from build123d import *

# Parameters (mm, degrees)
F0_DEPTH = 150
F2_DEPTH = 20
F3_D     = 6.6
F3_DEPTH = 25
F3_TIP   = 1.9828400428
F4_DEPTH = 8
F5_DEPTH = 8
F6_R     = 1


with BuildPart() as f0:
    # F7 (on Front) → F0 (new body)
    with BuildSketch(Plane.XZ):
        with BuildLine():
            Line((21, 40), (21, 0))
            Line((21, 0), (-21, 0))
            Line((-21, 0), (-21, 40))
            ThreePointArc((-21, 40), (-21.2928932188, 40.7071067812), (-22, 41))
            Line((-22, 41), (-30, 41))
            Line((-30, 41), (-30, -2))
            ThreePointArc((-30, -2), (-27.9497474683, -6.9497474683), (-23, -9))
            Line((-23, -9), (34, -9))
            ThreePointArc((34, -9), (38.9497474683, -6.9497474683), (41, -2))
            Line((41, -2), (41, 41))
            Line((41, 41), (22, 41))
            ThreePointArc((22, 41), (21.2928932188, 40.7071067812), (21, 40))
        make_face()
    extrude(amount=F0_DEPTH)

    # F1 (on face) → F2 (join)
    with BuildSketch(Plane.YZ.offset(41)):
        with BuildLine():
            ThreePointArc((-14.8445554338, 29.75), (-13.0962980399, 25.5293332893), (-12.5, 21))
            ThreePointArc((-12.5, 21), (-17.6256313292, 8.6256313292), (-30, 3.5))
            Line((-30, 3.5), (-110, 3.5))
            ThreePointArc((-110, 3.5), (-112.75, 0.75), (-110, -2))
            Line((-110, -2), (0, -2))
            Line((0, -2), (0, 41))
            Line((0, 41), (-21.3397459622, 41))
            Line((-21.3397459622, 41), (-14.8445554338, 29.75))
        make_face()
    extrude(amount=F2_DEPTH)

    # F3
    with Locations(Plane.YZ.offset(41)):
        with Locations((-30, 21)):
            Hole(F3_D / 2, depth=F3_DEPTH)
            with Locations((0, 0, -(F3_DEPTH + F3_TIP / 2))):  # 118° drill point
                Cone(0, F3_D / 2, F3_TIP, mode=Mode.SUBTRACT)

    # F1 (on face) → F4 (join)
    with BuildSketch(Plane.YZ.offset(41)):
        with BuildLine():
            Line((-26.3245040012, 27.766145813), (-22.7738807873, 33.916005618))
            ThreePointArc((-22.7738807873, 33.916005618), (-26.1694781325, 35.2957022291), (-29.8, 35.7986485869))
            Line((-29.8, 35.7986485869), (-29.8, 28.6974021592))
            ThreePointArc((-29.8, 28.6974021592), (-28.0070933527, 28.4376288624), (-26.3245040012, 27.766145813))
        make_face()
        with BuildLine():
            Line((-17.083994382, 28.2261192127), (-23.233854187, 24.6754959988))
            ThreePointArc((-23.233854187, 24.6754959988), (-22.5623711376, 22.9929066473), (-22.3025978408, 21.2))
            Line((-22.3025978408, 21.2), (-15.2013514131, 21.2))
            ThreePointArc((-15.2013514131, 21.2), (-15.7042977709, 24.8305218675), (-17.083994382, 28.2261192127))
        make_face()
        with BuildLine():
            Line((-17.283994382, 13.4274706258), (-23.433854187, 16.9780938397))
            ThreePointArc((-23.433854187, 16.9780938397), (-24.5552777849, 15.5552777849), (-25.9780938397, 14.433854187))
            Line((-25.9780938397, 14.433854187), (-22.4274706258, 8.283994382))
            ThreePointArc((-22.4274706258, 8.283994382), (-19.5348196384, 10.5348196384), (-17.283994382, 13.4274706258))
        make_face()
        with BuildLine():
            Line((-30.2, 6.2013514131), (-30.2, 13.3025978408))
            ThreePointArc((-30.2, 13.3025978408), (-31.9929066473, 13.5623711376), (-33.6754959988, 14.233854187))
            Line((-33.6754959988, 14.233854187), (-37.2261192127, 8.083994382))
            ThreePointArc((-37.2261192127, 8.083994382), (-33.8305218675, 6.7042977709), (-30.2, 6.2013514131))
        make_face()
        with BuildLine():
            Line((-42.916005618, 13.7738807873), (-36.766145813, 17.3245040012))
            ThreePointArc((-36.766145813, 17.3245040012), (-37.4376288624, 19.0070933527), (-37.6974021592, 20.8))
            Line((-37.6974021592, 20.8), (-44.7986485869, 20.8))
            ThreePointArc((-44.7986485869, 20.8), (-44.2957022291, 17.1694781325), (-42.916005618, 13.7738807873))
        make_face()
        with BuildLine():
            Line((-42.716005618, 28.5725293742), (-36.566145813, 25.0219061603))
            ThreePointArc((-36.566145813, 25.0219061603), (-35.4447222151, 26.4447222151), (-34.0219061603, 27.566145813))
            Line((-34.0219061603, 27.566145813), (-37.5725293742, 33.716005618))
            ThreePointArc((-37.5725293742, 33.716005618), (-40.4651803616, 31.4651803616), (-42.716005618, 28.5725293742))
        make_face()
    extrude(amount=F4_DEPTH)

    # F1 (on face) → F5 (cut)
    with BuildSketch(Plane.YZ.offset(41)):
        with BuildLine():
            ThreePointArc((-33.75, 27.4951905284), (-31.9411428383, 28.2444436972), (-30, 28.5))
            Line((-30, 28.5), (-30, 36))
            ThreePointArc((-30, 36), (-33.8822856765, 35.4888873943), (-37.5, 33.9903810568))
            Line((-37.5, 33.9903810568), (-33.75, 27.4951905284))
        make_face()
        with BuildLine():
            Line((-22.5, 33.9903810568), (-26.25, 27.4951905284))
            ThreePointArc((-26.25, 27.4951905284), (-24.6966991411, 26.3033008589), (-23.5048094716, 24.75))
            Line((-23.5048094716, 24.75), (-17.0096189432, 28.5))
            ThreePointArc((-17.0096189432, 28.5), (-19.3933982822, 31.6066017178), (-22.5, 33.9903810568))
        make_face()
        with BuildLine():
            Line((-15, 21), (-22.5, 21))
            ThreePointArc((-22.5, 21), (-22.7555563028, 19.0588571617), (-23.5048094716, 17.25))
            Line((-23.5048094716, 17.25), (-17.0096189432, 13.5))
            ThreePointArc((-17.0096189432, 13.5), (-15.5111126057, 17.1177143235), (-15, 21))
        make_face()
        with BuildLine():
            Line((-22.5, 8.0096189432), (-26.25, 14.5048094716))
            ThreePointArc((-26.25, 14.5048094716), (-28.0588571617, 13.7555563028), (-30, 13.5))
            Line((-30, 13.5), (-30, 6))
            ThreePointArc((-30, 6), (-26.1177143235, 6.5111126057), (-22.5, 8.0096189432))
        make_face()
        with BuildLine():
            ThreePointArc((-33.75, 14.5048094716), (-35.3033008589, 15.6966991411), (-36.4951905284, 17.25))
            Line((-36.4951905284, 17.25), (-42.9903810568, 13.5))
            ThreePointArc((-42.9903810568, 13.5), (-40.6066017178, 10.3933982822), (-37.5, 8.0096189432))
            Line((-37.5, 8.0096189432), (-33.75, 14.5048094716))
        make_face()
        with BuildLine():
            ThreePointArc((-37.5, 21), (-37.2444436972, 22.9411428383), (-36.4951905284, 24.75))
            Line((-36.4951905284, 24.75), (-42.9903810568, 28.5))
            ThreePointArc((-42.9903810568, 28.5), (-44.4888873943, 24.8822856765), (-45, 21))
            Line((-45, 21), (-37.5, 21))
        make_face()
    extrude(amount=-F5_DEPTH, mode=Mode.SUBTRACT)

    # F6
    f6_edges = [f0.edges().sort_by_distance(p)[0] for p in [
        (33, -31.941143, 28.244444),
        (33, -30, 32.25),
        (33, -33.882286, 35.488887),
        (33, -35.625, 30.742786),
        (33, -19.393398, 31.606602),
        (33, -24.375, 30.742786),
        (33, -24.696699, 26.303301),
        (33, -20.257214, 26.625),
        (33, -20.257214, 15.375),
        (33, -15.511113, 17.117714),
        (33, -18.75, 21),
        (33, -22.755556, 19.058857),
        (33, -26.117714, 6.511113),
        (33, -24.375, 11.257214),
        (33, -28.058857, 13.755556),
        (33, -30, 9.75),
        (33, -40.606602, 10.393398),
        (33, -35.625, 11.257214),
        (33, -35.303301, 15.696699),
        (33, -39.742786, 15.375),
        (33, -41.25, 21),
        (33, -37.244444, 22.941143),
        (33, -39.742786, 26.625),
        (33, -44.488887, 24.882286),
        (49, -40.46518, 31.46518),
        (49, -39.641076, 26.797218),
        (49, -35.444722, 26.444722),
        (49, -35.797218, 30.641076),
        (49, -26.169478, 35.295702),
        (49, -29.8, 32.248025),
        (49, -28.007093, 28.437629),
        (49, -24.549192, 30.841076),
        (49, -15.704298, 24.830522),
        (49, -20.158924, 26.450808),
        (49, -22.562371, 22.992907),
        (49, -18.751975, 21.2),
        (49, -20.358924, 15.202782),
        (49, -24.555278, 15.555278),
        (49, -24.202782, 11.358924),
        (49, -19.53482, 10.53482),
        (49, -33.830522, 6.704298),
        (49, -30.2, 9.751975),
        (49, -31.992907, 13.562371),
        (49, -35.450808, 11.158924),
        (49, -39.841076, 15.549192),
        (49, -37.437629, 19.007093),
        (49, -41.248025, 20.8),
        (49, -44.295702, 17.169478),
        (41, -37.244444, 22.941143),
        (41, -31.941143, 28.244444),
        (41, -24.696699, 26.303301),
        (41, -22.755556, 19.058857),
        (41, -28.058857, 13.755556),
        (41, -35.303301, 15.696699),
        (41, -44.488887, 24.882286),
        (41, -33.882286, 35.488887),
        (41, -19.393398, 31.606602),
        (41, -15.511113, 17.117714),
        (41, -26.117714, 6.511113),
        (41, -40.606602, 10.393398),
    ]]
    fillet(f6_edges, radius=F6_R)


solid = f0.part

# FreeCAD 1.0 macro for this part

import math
import FreeCAD as App
import Part
import Sketcher
Q = App.Units.Quantity


def edges_at(feature, points):
    """Names of the edges that pass closest to the given points."""
    edges = feature.Shape.Edges
    near = lambda p: min(range(len(edges)), key=lambda i: edges[i].distToShape(Part.Vertex(*p))[0])
    return sorted({f"Edge{near(p) + 1}" for p in points})

doc = App.newDocument("Part")
body = doc.addObject("PartDesign::Body", "Body")

# Sketch on XZ plane
sketch1 = body.newObject("Sketcher::SketchObject", "Sketch")
sketch1.AttachmentSupport = (doc.getObject("XZ_Plane"), [""])
sketch1.MapMode = "FlatFace"
sketch1.addGeometry([
    Part.LineSegment(App.Vector(21, 40, 0), App.Vector(21, 0, 0)),  # 0
    Part.LineSegment(App.Vector(21, 0, 0), App.Vector(-21, 0, 0)),  # 1
    Part.LineSegment(App.Vector(-21, 0, 0), App.Vector(-21, 40, 0)),  # 2
    Part.ArcOfCircle(Part.Circle(App.Vector(-22, 40, 0), App.Vector(0, 0, 1), 1), math.radians(0), math.radians(90)),  # 3
    Part.LineSegment(App.Vector(-22, 41, 0), App.Vector(-30, 41, 0)),  # 4
    Part.LineSegment(App.Vector(-30, 41, 0), App.Vector(-30, -2, 0)),  # 5
    Part.ArcOfCircle(Part.Circle(App.Vector(-23, -2, 0), App.Vector(0, 0, 1), 7), math.radians(180), math.radians(270)),  # 6
    Part.LineSegment(App.Vector(-23, -9, 0), App.Vector(34, -9, 0)),  # 7
    Part.ArcOfCircle(Part.Circle(App.Vector(34, -2, 0), App.Vector(0, 0, 1), 7), math.radians(-90), math.radians(0)),  # 8
    Part.LineSegment(App.Vector(41, -2, 0), App.Vector(41, 41, 0)),  # 9
    Part.LineSegment(App.Vector(41, 41, 0), App.Vector(22, 41, 0)),  # 10
    Part.ArcOfCircle(Part.Circle(App.Vector(22, 40, 0), App.Vector(0, 0, 1), 1), math.radians(90), math.radians(180)),  # 11
], False)
sketch1.addConstraint([
    Sketcher.Constraint("Coincident", 0, 2, 1, 1),
    Sketcher.Constraint("Coincident", 1, 2, 2, 1),
    Sketcher.Constraint("Tangent", 2, 2, 3, 1),
    Sketcher.Constraint("Tangent", 3, 2, 4, 1),
    Sketcher.Constraint("Coincident", 4, 2, 5, 1),
    Sketcher.Constraint("Tangent", 5, 2, 6, 1),
    Sketcher.Constraint("Tangent", 6, 2, 7, 1),
    Sketcher.Constraint("Tangent", 7, 2, 8, 1),
    Sketcher.Constraint("Tangent", 8, 2, 9, 1),
    Sketcher.Constraint("Coincident", 9, 2, 10, 1),
    Sketcher.Constraint("Tangent", 10, 2, 11, 1),
    Sketcher.Constraint("Tangent", 11, 2, 0, 1),
    Sketcher.Constraint("Vertical", 0),
    Sketcher.Constraint("Horizontal", 1),
    Sketcher.Constraint("Vertical", 2),
    Sketcher.Constraint("Horizontal", 4),
    Sketcher.Constraint("Vertical", 5),
    Sketcher.Constraint("Horizontal", 7),
    Sketcher.Constraint("Vertical", 9),
    Sketcher.Constraint("Horizontal", 10),
    Sketcher.Constraint("Equal", 6, 8),
    Sketcher.Constraint("Equal", 3, 11),
    Sketcher.Constraint("Symmetric", 0, 2, 1, 2, -1, 1),
    Sketcher.Constraint("Horizontal", 3, 3, 11, 3),
    Sketcher.Constraint("Radius", 3, Q("1 mm")),
    Sketcher.Constraint("Radius", 6, Q("7 mm")),
    Sketcher.Constraint("DistanceX", 1, 2, 1, 1, Q("42 mm")),
    Sketcher.Constraint("DistanceX", 4, 2, 4, 1, Q("8 mm")),
    Sketcher.Constraint("DistanceX", 7, 1, 7, 2, Q("57 mm")),
    Sketcher.Constraint("DistanceY", 0, 2, 0, 1, Q("40 mm")),
    Sketcher.Constraint("DistanceY", 5, 2, 5, 1, Q("43 mm")),
])
pad1 = body.newObject("PartDesign::Pad", "Pad")
pad1.Profile = sketch1
pad1.Length = 150

# Sketch on YZ plane
sketch2 = body.newObject("Sketcher::SketchObject", "Sketch001")
sketch2.AttachmentSupport = (doc.getObject("YZ_Plane"), [""])
sketch2.MapMode = "FlatFace"
sketch2.AttachmentOffset = App.Placement(App.Vector(0, 0, 41), App.Rotation())
sketch2.addGeometry([
    Part.ArcOfCircle(Part.Circle(App.Vector(-30, 21, 0), App.Vector(0, 0, 1), 17.5), math.radians(0), math.radians(30)),  # 0
    Part.ArcOfCircle(Part.Circle(App.Vector(-30, 21, 0), App.Vector(0, 0, 1), 17.5), math.radians(-90), math.radians(0)),  # 1
    Part.LineSegment(App.Vector(-30, 3.5, 0), App.Vector(-110, 3.5, 0)),  # 2
    Part.ArcOfCircle(Part.Circle(App.Vector(-110, 0.8, 0), App.Vector(0, 0, 1), 2.8), math.radians(90), math.radians(270)),  # 3
    Part.LineSegment(App.Vector(-110, -2, 0), App.Vector(0, -2, 0)),  # 4
    Part.LineSegment(App.Vector(0, -2, 0), App.Vector(0, 41, 0)),  # 5
    Part.LineSegment(App.Vector(0, 41, 0), App.Vector(-21.3, 41, 0)),  # 6
    Part.LineSegment(App.Vector(-21.3, 41, 0), App.Vector(-14.8, 29.8, 0)),  # 7
], False)
sketch2.addConstraint([
    Sketcher.Constraint("Tangent", 0, 1, 1, 2),
    Sketcher.Constraint("Tangent", 1, 1, 2, 1),
    Sketcher.Constraint("Tangent", 2, 2, 3, 1),
    Sketcher.Constraint("Tangent", 3, 2, 4, 1),
    Sketcher.Constraint("Coincident", 4, 2, 5, 1),
    Sketcher.Constraint("Coincident", 5, 2, 6, 1),
    Sketcher.Constraint("Coincident", 6, 2, 7, 1),
    Sketcher.Constraint("Tangent", 7, 2, 0, 2),
    Sketcher.Constraint("Horizontal", 2),
    Sketcher.Constraint("Horizontal", 4),
    Sketcher.Constraint("Vertical", 5),
    Sketcher.Constraint("Horizontal", 6),
    Sketcher.Constraint("Equal", 0, 1),
    Sketcher.Constraint("PointOnObject", 4, 2, -2),
    Sketcher.Constraint("Horizontal", 1, 3, 0, 1),
    Sketcher.Constraint("Radius", 0, Q("17.5 mm")),
    Sketcher.Constraint("DistanceX", 2, 2, 2, 1, Q("80 mm")),
    Sketcher.Constraint("DistanceX", 4, 1, 4, 2, Q("110 mm")),
    Sketcher.Constraint("DistanceY", 5, 1, 5, 2, Q("43 mm")),
    Sketcher.Constraint("Angle", 7, Q("-60 deg")),
    Sketcher.Constraint("Radius", 3, Q("2.75 mm")),
    Sketcher.Constraint("DistanceY", -1, 1, 0, 3, Q("21 mm")),
])
pad2 = body.newObject("PartDesign::Pad", "Pad001")
pad2.Profile = sketch2
pad2.Length = 20

# Sketch on YZ plane
sketch3 = body.newObject("Sketcher::SketchObject", "Sketch002")
sketch3.AttachmentSupport = (doc.getObject("YZ_Plane"), [""])
sketch3.MapMode = "FlatFace"
sketch3.AttachmentOffset = App.Placement(App.Vector(0, 0, 41), App.Rotation())
sketch3.addGeometry(Part.Circle(App.Vector(-30, 21, 0), App.Vector(0, 0, 1), 3.3), False)
sketch3.addConstraint([
    Sketcher.Constraint("Diameter", 0, Q("6.6 mm")),
    Sketcher.Constraint("DistanceX", 0, 3, -1, 1, Q("30 mm")),
    Sketcher.Constraint("DistanceY", -1, 1, 0, 3, Q("21 mm")),
])
doc.recompute()
hole = body.newObject("PartDesign::Hole", "Hole")
hole.Profile = sketch3
hole.ThreadType = "None"
hole.Diameter = 6.6
hole.DepthType = "Dimension"
hole.Depth = 25
hole.DrillPoint = "Angled"
hole.DrillPointAngle = 118

# Sketch on YZ plane
sketch4 = body.newObject("Sketcher::SketchObject", "Sketch003")
sketch4.AttachmentSupport = (doc.getObject("YZ_Plane"), [""])
sketch4.MapMode = "FlatFace"
sketch4.AttachmentOffset = App.Placement(App.Vector(0, 0, 41), App.Rotation())
sketch4.addGeometry([
    Part.LineSegment(App.Vector(-26.324504, 27.766146, 0), App.Vector(-22.773881, 33.916006, 0)),  # 0
    Part.ArcOfCircle(Part.Circle(App.Vector(-30, 21, 0), App.Vector(0, 0, 1), 14.8), math.radians(60.774291), math.radians(89.225709)),  # 1
    Part.LineSegment(App.Vector(-29.8, 35.798649, 0), App.Vector(-29.8, 28.697402, 0)),  # 2
    Part.ArcOfCircle(Part.Circle(App.Vector(-30, 21, 0), App.Vector(0, 0, 1), 7.7), math.radians(61.488369), math.radians(88.511631)),  # 3
    Part.LineSegment(App.Vector(-17.083994, 28.226119, 0), App.Vector(-23.233854, 24.675496, 0)),  # 4
    Part.ArcOfCircle(Part.Circle(App.Vector(-30, 21, 0), App.Vector(0, 0, 1), 7.7), math.radians(1.488369), math.radians(28.511631)),  # 5
    Part.LineSegment(App.Vector(-22.302598, 21.2, 0), App.Vector(-15.201351, 21.2, 0)),  # 6
    Part.ArcOfCircle(Part.Circle(App.Vector(-30, 21, 0), App.Vector(0, 0, 1), 14.8), math.radians(0.774291), math.radians(29.225709)),  # 7
    Part.LineSegment(App.Vector(-17.283994, 13.427471, 0), App.Vector(-23.433854, 16.978094, 0)),  # 8
    Part.ArcOfCircle(Part.Circle(App.Vector(-30, 21, 0), App.Vector(0, 0, 1), 7.7), math.radians(-58.511631), math.radians(-31.488369)),  # 9
    Part.LineSegment(App.Vector(-25.978094, 14.433854, 0), App.Vector(-22.427471, 8.283994, 0)),  # 10
    Part.ArcOfCircle(Part.Circle(App.Vector(-30, 21, 0), App.Vector(0, 0, 1), 14.8), math.radians(-59.225709), math.radians(-30.774291)),  # 11
    Part.LineSegment(App.Vector(-30.2, 6.201351, 0), App.Vector(-30.2, 13.302598, 0)),  # 12
    Part.ArcOfCircle(Part.Circle(App.Vector(-30, 21, 0), App.Vector(0, 0, 1), 7.7), math.radians(-118.511631), math.radians(-91.488369)),  # 13
    Part.LineSegment(App.Vector(-33.675496, 14.233854, 0), App.Vector(-37.226119, 8.083994, 0)),  # 14
    Part.ArcOfCircle(Part.Circle(App.Vector(-30, 21, 0), App.Vector(0, 0, 1), 14.8), math.radians(-119.225709), math.radians(-90.774291)),  # 15
    Part.LineSegment(App.Vector(-42.916006, 13.773881, 0), App.Vector(-36.766146, 17.324504, 0)),  # 16
    Part.ArcOfCircle(Part.Circle(App.Vector(-30, 21, 0), App.Vector(0, 0, 1), 7.7), math.radians(-178.511631), math.radians(-151.488369)),  # 17
    Part.LineSegment(App.Vector(-37.697402, 20.8, 0), App.Vector(-44.798649, 20.8, 0)),  # 18
    Part.ArcOfCircle(Part.Circle(App.Vector(-30, 21, 0), App.Vector(0, 0, 1), 14.8), math.radians(-179.225709), math.radians(-150.774291)),  # 19
    Part.LineSegment(App.Vector(-42.716006, 28.572529, 0), App.Vector(-36.566146, 25.021906, 0)),  # 20
    Part.ArcOfCircle(Part.Circle(App.Vector(-30, 21, 0), App.Vector(0, 0, 1), 7.7), math.radians(121.488369), math.radians(148.511631)),  # 21
    Part.LineSegment(App.Vector(-34.021906, 27.566146, 0), App.Vector(-37.572529, 33.716006, 0)),  # 22
    Part.ArcOfCircle(Part.Circle(App.Vector(-30, 21, 0), App.Vector(0, 0, 1), 14.8), math.radians(120.774291), math.radians(149.225709)),  # 23
], False)
sketch4.addConstraint([
    Sketcher.Constraint("Coincident", 0, 2, 1, 1),
    Sketcher.Constraint("Coincident", 1, 2, 2, 1),
    Sketcher.Constraint("Coincident", 2, 2, 3, 2),
    Sketcher.Constraint("Coincident", 3, 1, 0, 1),
    Sketcher.Constraint("Coincident", 4, 2, 5, 2),
    Sketcher.Constraint("Coincident", 5, 1, 6, 1),
    Sketcher.Constraint("Coincident", 6, 2, 7, 1),
    Sketcher.Constraint("Coincident", 7, 2, 4, 1),
    Sketcher.Constraint("Coincident", 8, 2, 9, 2),
    Sketcher.Constraint("Coincident", 9, 1, 10, 1),
    Sketcher.Constraint("Coincident", 10, 2, 11, 1),
    Sketcher.Constraint("Coincident", 11, 2, 8, 1),
    Sketcher.Constraint("Coincident", 12, 2, 13, 2),
    Sketcher.Constraint("Coincident", 13, 1, 14, 1),
    Sketcher.Constraint("Coincident", 14, 2, 15, 1),
    Sketcher.Constraint("Coincident", 15, 2, 12, 1),
    Sketcher.Constraint("Coincident", 16, 2, 17, 2),
    Sketcher.Constraint("Coincident", 17, 1, 18, 1),
    Sketcher.Constraint("Coincident", 18, 2, 19, 1),
    Sketcher.Constraint("Coincident", 19, 2, 16, 1),
    Sketcher.Constraint("Coincident", 20, 2, 21, 2),
    Sketcher.Constraint("Coincident", 21, 1, 22, 1),
    Sketcher.Constraint("Coincident", 22, 2, 23, 1),
    Sketcher.Constraint("Coincident", 23, 2, 20, 1),
    Sketcher.Constraint("Vertical", 2),
    Sketcher.Constraint("Horizontal", 6),
    Sketcher.Constraint("Vertical", 12),
    Sketcher.Constraint("Horizontal", 18),
    Sketcher.Constraint("Coincident", 3, 3, 1, 3),
    Sketcher.Constraint("Coincident", 5, 3, 1, 3),
    Sketcher.Constraint("Coincident", 7, 3, 1, 3),
    Sketcher.Constraint("Coincident", 9, 3, 1, 3),
    Sketcher.Constraint("Coincident", 11, 3, 1, 3),
    Sketcher.Constraint("Coincident", 13, 3, 1, 3),
    Sketcher.Constraint("Coincident", 15, 3, 1, 3),
    Sketcher.Constraint("Coincident", 17, 3, 1, 3),
    Sketcher.Constraint("Coincident", 19, 3, 1, 3),
    Sketcher.Constraint("Coincident", 21, 3, 1, 3),
    Sketcher.Constraint("Coincident", 23, 3, 1, 3),
    Sketcher.Constraint("Equal", 3, 5),
    Sketcher.Constraint("Equal", 1, 7),
    Sketcher.Constraint("Equal", 5, 9),
    Sketcher.Constraint("Equal", 7, 11),
    Sketcher.Constraint("Equal", 9, 13),
    Sketcher.Constraint("Equal", 11, 15),
    Sketcher.Constraint("Equal", 13, 17),
    Sketcher.Constraint("Equal", 15, 19),
    Sketcher.Constraint("Equal", 17, 21),
    Sketcher.Constraint("Equal", 19, 23),
    Sketcher.Constraint("Perpendicular", 0, 8),
    Sketcher.Constraint("Perpendicular", 4, 10),
    Sketcher.Constraint("Perpendicular", 8, 14),
    Sketcher.Constraint("Perpendicular", 10, 16),
    Sketcher.Constraint("Perpendicular", 14, 20),
    Sketcher.Constraint("Perpendicular", 16, 22),
    Sketcher.Constraint("Equal", 6, 18),
    Sketcher.Constraint("Equal", 18, 2),
    Sketcher.Constraint("Equal", 2, 12),
    Sketcher.Constraint("Equal", 0, 4),
    Sketcher.Constraint("Equal", 4, 8),
    Sketcher.Constraint("Equal", 8, 10),
    Sketcher.Constraint("Equal", 10, 14),
    Sketcher.Constraint("Equal", 14, 16),
    Sketcher.Constraint("Equal", 16, 20),
    Sketcher.Constraint("Equal", 20, 22),
    Sketcher.Constraint("Radius", 1, Q("14.8 mm")),
    Sketcher.Constraint("Radius", 3, Q("7.7 mm")),
    Sketcher.Constraint("Angle", 0, Q("60 deg")),
    Sketcher.Constraint("Angle", 4, Q("-150 deg")),
    Sketcher.Constraint("DistanceX", 1, 3, -1, 1, Q("30 mm")),
    Sketcher.Constraint("DistanceY", -1, 1, 1, 3, Q("21 mm")),
    Sketcher.Constraint("DistanceX", 1, 2, -1, 1, Q("29.8 mm")),
    Sketcher.Constraint("DistanceY", 10, 2, 8, 2, Q("8.694099 mm")),
])
pad3 = body.newObject("PartDesign::Pad", "Pad002")
pad3.Profile = sketch4
pad3.Length = 8

# Sketch on YZ plane
sketch5 = body.newObject("Sketcher::SketchObject", "Sketch004")
sketch5.AttachmentSupport = (doc.getObject("YZ_Plane"), [""])
sketch5.MapMode = "FlatFace"
sketch5.AttachmentOffset = App.Placement(App.Vector(0, 0, 41), App.Rotation())
sketch5.addGeometry([
    Part.ArcOfCircle(Part.Circle(App.Vector(-30, 21, 0), App.Vector(0, 0, 1), 7.5), math.radians(90), math.radians(120)),  # 0
    Part.LineSegment(App.Vector(-30, 28.5, 0), App.Vector(-30, 36, 0)),  # 1
    Part.ArcOfCircle(Part.Circle(App.Vector(-30, 21, 0), App.Vector(0, 0, 1), 15), math.radians(90), math.radians(120)),  # 2
    Part.LineSegment(App.Vector(-37.5, 34, 0), App.Vector(-33.8, 27.5, 0)),  # 3
    Part.LineSegment(App.Vector(-22.5, 34, 0), App.Vector(-26.2, 27.5, 0)),  # 4
    Part.ArcOfCircle(Part.Circle(App.Vector(-30, 21, 0), App.Vector(0, 0, 1), 7.5), math.radians(30), math.radians(60)),  # 5
    Part.LineSegment(App.Vector(-23.5, 24.8, 0), App.Vector(-17, 28.5, 0)),  # 6
    Part.ArcOfCircle(Part.Circle(App.Vector(-30, 21, 0), App.Vector(0, 0, 1), 15), math.radians(30), math.radians(60)),  # 7
    Part.LineSegment(App.Vector(-15, 21, 0), App.Vector(-22.5, 21, 0)),  # 8
    Part.ArcOfCircle(Part.Circle(App.Vector(-30, 21, 0), App.Vector(0, 0, 1), 7.5), math.radians(-30), math.radians(0)),  # 9
    Part.LineSegment(App.Vector(-23.5, 17.2, 0), App.Vector(-17, 13.5, 0)),  # 10
    Part.ArcOfCircle(Part.Circle(App.Vector(-30, 21, 0), App.Vector(0, 0, 1), 15), math.radians(-30), math.radians(0)),  # 11
    Part.LineSegment(App.Vector(-22.5, 8, 0), App.Vector(-26.2, 14.5, 0)),  # 12
    Part.ArcOfCircle(Part.Circle(App.Vector(-30, 21, 0), App.Vector(0, 0, 1), 7.5), math.radians(-90), math.radians(-60)),  # 13
    Part.LineSegment(App.Vector(-30, 13.5, 0), App.Vector(-30, 6, 0)),  # 14
    Part.ArcOfCircle(Part.Circle(App.Vector(-30, 21, 0), App.Vector(0, 0, 1), 15), math.radians(-90), math.radians(-60)),  # 15
    Part.ArcOfCircle(Part.Circle(App.Vector(-30, 21, 0), App.Vector(0, 0, 1), 7.5), math.radians(-150), math.radians(-120)),  # 16
    Part.LineSegment(App.Vector(-36.5, 17.2, 0), App.Vector(-43, 13.5, 0)),  # 17
    Part.ArcOfCircle(Part.Circle(App.Vector(-30, 21, 0), App.Vector(0, 0, 1), 15), math.radians(-150), math.radians(-120)),  # 18
    Part.LineSegment(App.Vector(-37.5, 8, 0), App.Vector(-33.8, 14.5, 0)),  # 19
    Part.ArcOfCircle(Part.Circle(App.Vector(-30, 21, 0), App.Vector(0, 0, 1), 7.5), math.radians(150), math.radians(180)),  # 20
    Part.LineSegment(App.Vector(-36.5, 24.8, 0), App.Vector(-43, 28.5, 0)),  # 21
    Part.ArcOfCircle(Part.Circle(App.Vector(-30, 21, 0), App.Vector(0, 0, 1), 15), math.radians(150), math.radians(180)),  # 22
    Part.LineSegment(App.Vector(-45, 21, 0), App.Vector(-37.5, 21, 0)),  # 23
], False)
sketch5.addConstraint([
    Sketcher.Constraint("Coincident", 0, 1, 1, 1),
    Sketcher.Constraint("Coincident", 1, 2, 2, 1),
    Sketcher.Constraint("Coincident", 2, 2, 3, 1),
    Sketcher.Constraint("Coincident", 3, 2, 0, 2),
    Sketcher.Constraint("Coincident", 4, 2, 5, 2),
    Sketcher.Constraint("Coincident", 5, 1, 6, 1),
    Sketcher.Constraint("Coincident", 6, 2, 7, 1),
    Sketcher.Constraint("Coincident", 7, 2, 4, 1),
    Sketcher.Constraint("Coincident", 8, 2, 9, 2),
    Sketcher.Constraint("Coincident", 9, 1, 10, 1),
    Sketcher.Constraint("Coincident", 10, 2, 11, 1),
    Sketcher.Constraint("Coincident", 11, 2, 8, 1),
    Sketcher.Constraint("Coincident", 12, 2, 13, 2),
    Sketcher.Constraint("Coincident", 13, 1, 14, 1),
    Sketcher.Constraint("Coincident", 14, 2, 15, 1),
    Sketcher.Constraint("Coincident", 15, 2, 12, 1),
    Sketcher.Constraint("Coincident", 16, 1, 17, 1),
    Sketcher.Constraint("Coincident", 17, 2, 18, 1),
    Sketcher.Constraint("Coincident", 18, 2, 19, 1),
    Sketcher.Constraint("Coincident", 19, 2, 16, 2),
    Sketcher.Constraint("Coincident", 20, 1, 21, 1),
    Sketcher.Constraint("Coincident", 21, 2, 22, 1),
    Sketcher.Constraint("Coincident", 22, 2, 23, 1),
    Sketcher.Constraint("Coincident", 23, 2, 20, 2),
    Sketcher.Constraint("Vertical", 1),
    Sketcher.Constraint("Horizontal", 8),
    Sketcher.Constraint("Vertical", 14),
    Sketcher.Constraint("Horizontal", 23),
    Sketcher.Constraint("Coincident", 2, 3, 0, 3),
    Sketcher.Constraint("Coincident", 5, 3, 0, 3),
    Sketcher.Constraint("Coincident", 7, 3, 0, 3),
    Sketcher.Constraint("Coincident", 9, 3, 0, 3),
    Sketcher.Constraint("Coincident", 11, 3, 0, 3),
    Sketcher.Constraint("Coincident", 13, 3, 0, 3),
    Sketcher.Constraint("Coincident", 15, 3, 0, 3),
    Sketcher.Constraint("Coincident", 16, 3, 0, 3),
    Sketcher.Constraint("Coincident", 18, 3, 0, 3),
    Sketcher.Constraint("Coincident", 20, 3, 0, 3),
    Sketcher.Constraint("Coincident", 22, 3, 0, 3),
    Sketcher.Constraint("Equal", 0, 5),
    Sketcher.Constraint("Equal", 2, 7),
    Sketcher.Constraint("Equal", 5, 9),
    Sketcher.Constraint("Equal", 7, 11),
    Sketcher.Constraint("Equal", 9, 13),
    Sketcher.Constraint("Equal", 11, 15),
    Sketcher.Constraint("Equal", 13, 16),
    Sketcher.Constraint("Equal", 15, 18),
    Sketcher.Constraint("Equal", 16, 20),
    Sketcher.Constraint("Equal", 18, 22),
    Sketcher.Constraint("Perpendicular", 3, 6),
    Sketcher.Constraint("Perpendicular", 4, 10),
    Sketcher.Constraint("Perpendicular", 6, 12),
    Sketcher.Constraint("Perpendicular", 12, 17),
    Sketcher.Constraint("Perpendicular", 10, 19),
    Sketcher.Constraint("Perpendicular", 19, 21),
    Sketcher.Constraint("Horizontal", 3, 2, 4, 2),
    Sketcher.Constraint("Horizontal", 0, 1, 6, 2),
    Sketcher.Constraint("Horizontal", 2, 2, 7, 2),
    Sketcher.Constraint("Horizontal", 22, 3, 8, 2),
    Sketcher.Constraint("Horizontal", 10, 2, 13, 1),
    Sketcher.Constraint("Horizontal", 9, 1, 16, 1),
    Sketcher.Constraint("Horizontal", 15, 2, 18, 2),
    Sketcher.Constraint("Horizontal", 5, 1, 20, 1),
    Sketcher.Constraint("Horizontal", 11, 2, 22, 2),
    Sketcher.Constraint("Vertical", 22, 3, 0, 1),
    Sketcher.Constraint("Vertical", 7, 2, 8, 2),
    Sketcher.Constraint("Vertical", 4, 2, 12, 2),
    Sketcher.Constraint("Vertical", 1, 2, 13, 1),
    Sketcher.Constraint("Radius", 2, Q("15 mm")),
    Sketcher.Constraint("Radius", 0, Q("7.5 mm")),
    Sketcher.Constraint("Angle", 3, Q("-60 deg")),
    Sketcher.Constraint("DistanceX", 0, 3, -1, 1, Q("30 mm")),
    Sketcher.Constraint("DistanceY", -1, 1, 0, 3, Q("21 mm")),
])
pocket1 = body.newObject("PartDesign::Pocket", "Pocket")
pocket1.Profile = sketch5
pocket1.Length = 8
doc.recompute()

fillet = body.newObject("PartDesign::Fillet", "Fillet")
fillet.Base = (pocket1, edges_at(pocket1, [
    (33, -31.941, 28.244),
    (33, -30, 32.25),
    (33, -33.882, 35.489),
    (33, -35.625, 30.743),
    (33, -19.393, 31.607),
    (33, -24.375, 30.743),
    (33, -24.697, 26.303),
    (33, -20.257, 26.625),
    (33, -20.257, 15.375),
    (33, -15.511, 17.118),
    (33, -18.75, 21),
    (33, -22.756, 19.059),
    (33, -26.118, 6.511),
    (33, -24.375, 11.257),
    (33, -28.059, 13.756),
    (33, -30, 9.75),
    (33, -40.607, 10.393),
    (33, -35.625, 11.257),
    (33, -35.303, 15.697),
    (33, -39.743, 15.375),
    (33, -41.25, 21),
    (33, -37.244, 22.941),
    (33, -39.743, 26.625),
    (33, -44.489, 24.882),
    (49, -40.465, 31.465),
    (49, -39.641, 26.797),
    (49, -35.445, 26.445),
    (49, -35.797, 30.641),
    (49, -26.169, 35.296),
    (49, -29.8, 32.248),
    (49, -28.007, 28.438),
    (49, -24.549, 30.841),
    (49, -15.704, 24.831),
    (49, -20.159, 26.451),
    (49, -22.562, 22.993),
    (49, -18.752, 21.2),
    (49, -20.359, 15.203),
    (49, -24.555, 15.555),
    (49, -24.203, 11.359),
    (49, -19.535, 10.535),
    (49, -33.831, 6.704),
    (49, -30.2, 9.752),
    (49, -31.993, 13.562),
    (49, -35.451, 11.159),
    (49, -39.841, 15.549),
    (49, -37.438, 19.007),
    (49, -41.248, 20.8),
    (49, -44.296, 17.169),
    (41, -37.244, 22.941),
    (41, -31.941, 28.244),
    (41, -24.697, 26.303),
    (41, -22.756, 19.059),
    (41, -28.059, 13.756),
    (41, -35.303, 15.697),
    (41, -44.489, 24.882),
    (41, -33.882, 35.489),
    (41, -19.393, 31.607),
    (41, -15.511, 17.118),
    (41, -26.118, 6.511),
    (41, -40.607, 10.393),
]))
fillet.Radius = 1

doc.recompute()
